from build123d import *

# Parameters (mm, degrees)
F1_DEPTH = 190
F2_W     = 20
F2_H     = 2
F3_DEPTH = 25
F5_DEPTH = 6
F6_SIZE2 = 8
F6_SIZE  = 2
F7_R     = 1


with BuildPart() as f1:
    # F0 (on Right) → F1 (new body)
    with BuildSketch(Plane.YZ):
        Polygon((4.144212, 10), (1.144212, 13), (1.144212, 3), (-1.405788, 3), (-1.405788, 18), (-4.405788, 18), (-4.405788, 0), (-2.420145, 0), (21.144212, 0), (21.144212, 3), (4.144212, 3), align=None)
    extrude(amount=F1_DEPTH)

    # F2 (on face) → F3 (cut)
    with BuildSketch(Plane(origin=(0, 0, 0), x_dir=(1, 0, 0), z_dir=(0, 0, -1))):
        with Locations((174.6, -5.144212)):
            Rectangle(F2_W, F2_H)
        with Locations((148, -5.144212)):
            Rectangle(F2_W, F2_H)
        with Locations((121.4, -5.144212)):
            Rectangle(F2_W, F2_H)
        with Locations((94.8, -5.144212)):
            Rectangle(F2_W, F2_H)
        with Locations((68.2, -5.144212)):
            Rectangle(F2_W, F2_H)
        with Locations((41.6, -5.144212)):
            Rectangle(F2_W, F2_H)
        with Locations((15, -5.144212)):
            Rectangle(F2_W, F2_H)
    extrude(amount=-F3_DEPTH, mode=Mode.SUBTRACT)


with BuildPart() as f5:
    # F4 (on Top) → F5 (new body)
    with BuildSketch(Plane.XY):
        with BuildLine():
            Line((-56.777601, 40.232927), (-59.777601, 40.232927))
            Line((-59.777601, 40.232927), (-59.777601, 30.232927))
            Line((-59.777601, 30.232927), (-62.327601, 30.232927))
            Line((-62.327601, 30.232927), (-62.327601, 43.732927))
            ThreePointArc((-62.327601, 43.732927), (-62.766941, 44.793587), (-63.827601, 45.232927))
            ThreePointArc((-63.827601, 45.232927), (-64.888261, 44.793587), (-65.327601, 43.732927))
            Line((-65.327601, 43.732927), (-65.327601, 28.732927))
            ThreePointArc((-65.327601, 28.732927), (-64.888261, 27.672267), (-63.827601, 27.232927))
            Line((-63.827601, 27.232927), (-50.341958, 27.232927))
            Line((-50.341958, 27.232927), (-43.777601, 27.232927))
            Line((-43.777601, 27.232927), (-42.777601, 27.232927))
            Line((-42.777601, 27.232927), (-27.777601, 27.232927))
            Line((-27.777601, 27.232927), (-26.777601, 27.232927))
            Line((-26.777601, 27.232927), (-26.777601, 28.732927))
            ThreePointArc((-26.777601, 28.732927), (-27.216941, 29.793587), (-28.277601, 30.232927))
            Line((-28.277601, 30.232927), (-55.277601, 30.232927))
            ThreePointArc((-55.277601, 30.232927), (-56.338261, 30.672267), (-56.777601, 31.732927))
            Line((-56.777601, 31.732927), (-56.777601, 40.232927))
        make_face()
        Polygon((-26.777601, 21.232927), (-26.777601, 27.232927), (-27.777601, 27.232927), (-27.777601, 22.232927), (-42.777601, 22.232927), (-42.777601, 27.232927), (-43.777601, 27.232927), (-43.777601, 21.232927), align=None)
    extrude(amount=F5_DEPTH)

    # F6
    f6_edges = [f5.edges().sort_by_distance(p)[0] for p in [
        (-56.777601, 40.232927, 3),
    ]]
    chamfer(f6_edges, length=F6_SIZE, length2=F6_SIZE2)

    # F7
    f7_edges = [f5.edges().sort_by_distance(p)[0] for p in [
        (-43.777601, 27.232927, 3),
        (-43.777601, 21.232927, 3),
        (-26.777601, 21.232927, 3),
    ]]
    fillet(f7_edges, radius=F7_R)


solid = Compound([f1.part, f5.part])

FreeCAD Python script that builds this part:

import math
import FreeCAD as App
import Part
import Sketcher
from FreeCAD import Vector
Q = App.Units.Quantity


def edges_at(feature, points):
    """Names of the edges that pass closest to the given points."""
    edges = feature.Shape.Edges
    near = lambda p: min(range(len(edges)), key=lambda i: edges[i].distToShape(Part.Vertex(*p))[0])
    return sorted({f"Edge{near(p) + 1}" for p in points})

doc = App.newDocument("Part")
body = doc.addObject("PartDesign::Body", "Body")

sketch1 = body.newObject("Sketcher::SketchObject", "Sketch")
sketch1.AttachmentSupport = (doc.getObject("YZ_Plane"), [""])
sketch1.MapMode = "FlatFace"
sketch1.addGeometry(Part.LineSegment(Vector(4.144212, 10, 0), Vector(1.144212, 13, 0)), False)
sketch1.addGeometry(Part.LineSegment(Vector(1.144212, 13, 0), Vector(1.144212, 3, 0)), False)
sketch1.addGeometry(Part.LineSegment(Vector(1.144212, 3, 0), Vector(-1.405788, 3, 0)), False)
sketch1.addGeometry(Part.LineSegment(Vector(-1.405788, 3, 0), Vector(-1.405788, 18, 0)), False)
sketch1.addGeometry(Part.LineSegment(Vector(-1.405788, 18, 0), Vector(-4.405788, 18, 0)), False)
sketch1.addGeometry(Part.LineSegment(Vector(-4.405788, 18, 0), Vector(-4.405788, 0, 0)), False)
sketch1.addGeometry(Part.LineSegment(Vector(-4.405788, 0, 0), Vector(21.144212, 0, 0)), False)
sketch1.addGeometry(Part.LineSegment(Vector(21.144212, 0, 0), Vector(21.144212, 3, 0)), False)
sketch1.addGeometry(Part.LineSegment(Vector(21.144212, 3, 0), Vector(4.144212, 3, 0)), False)
sketch1.addGeometry(Part.LineSegment(Vector(4.144212, 3, 0), Vector(4.144212, 10, 0)), False)
sketch1.addConstraint(Sketcher.Constraint("Coincident", 0, 2, 1, 1))
sketch1.addConstraint(Sketcher.Constraint("Coincident", 1, 2, 2, 1))
sketch1.addConstraint(Sketcher.Constraint("Coincident", 2, 2, 3, 1))
sketch1.addConstraint(Sketcher.Constraint("Coincident", 3, 2, 4, 1))
sketch1.addConstraint(Sketcher.Constraint("Coincident", 4, 2, 5, 1))
sketch1.addConstraint(Sketcher.Constraint("Coincident", 5, 2, 6, 1))
sketch1.addConstraint(Sketcher.Constraint("Coincident", 6, 2, 7, 1))
sketch1.addConstraint(Sketcher.Constraint("Coincident", 7, 2, 8, 1))
sketch1.addConstraint(Sketcher.Constraint("Coincident", 8, 2, 9, 1))
sketch1.addConstraint(Sketcher.Constraint("Coincident", 9, 2, 0, 1))
sketch1.addConstraint(Sketcher.Constraint("Vertical", 1))
sketch1.addConstraint(Sketcher.Constraint("Horizontal", 2))
sketch1.addConstraint(Sketcher.Constraint("Vertical", 3))
sketch1.addConstraint(Sketcher.Constraint("Horizontal", 4))
sketch1.addConstraint(Sketcher.Constraint("Vertical", 5))
sketch1.addConstraint(Sketcher.Constraint("Horizontal", 6))
sketch1.addConstraint(Sketcher.Constraint("Vertical", 7))
sketch1.addConstraint(Sketcher.Constraint("Horizontal", 8))
sketch1.addConstraint(Sketcher.Constraint("Vertical", 9))
sketch1.addConstraint(Sketcher.Constraint("PointOnObject", 5, 2, -1))
sketch1.addConstraint(Sketcher.Constraint("Horizontal", 2, 2, 7, 2))
sketch1.addConstraint(Sketcher.Constraint("Equal", 4, 7))
sketch1.addConstraint(Sketcher.Constraint("DistanceX", 4, 2, 4, 1, 3.0))
sketch1.addConstraint(Sketcher.Constraint("DistanceX", 8, 2, 8, 1, 17.0))
sketch1.addConstraint(Sketcher.Constraint("DistanceY", 1, 2, 1, 1, 10.0))
sketch1.addConstraint(Sketcher.Constraint("DistanceY", 3, 1, 3, 2, 15.0))
sketch1.addConstraint(Sketcher.Constraint("DistanceY", 9, 1, 9, 2, 7.0))
sketch1.addConstraint(Sketcher.Constraint("Angle", 0, Q("135 deg")))
sketch1.addConstraint(Sketcher.Constraint("DistanceX", 2, 2, 2, 1, 2.55))
sketch1.addConstraint(Sketcher.Constraint("DistanceX", 4, 2, -1, 1, 4.405788))
pad1 = body.newObject("PartDesign::Pad", "Pad")
pad1.Profile = sketch1
pad1.Length = 190

sketch2 = body.newObject("Sketcher::SketchObject", "Sketch001")
sketch2.AttachmentSupport = (doc.getObject("XY_Plane"), [""])
sketch2.MapMode = "FlatFace"
sketch2.addGeometry(Part.LineSegment(Vector(164.6, 4.144212, 0), Vector(164.6, 6.144212, 0)), False)
sketch2.addGeometry(Part.LineSegment(Vector(164.6, 6.144212, 0), Vector(184.6, 6.144212, 0)), False)
sketch2.addGeometry(Part.LineSegment(Vector(184.6, 6.144212, 0), Vector(184.6, 4.144212, 0)), False)
sketch2.addGeometry(Part.LineSegment(Vector(184.6, 4.144212, 0), Vector(164.6, 4.144212, 0)), False)
sketch2.addGeometry(Part.LineSegment(Vector(138, 4.144212, 0), Vector(138, 6.144212, 0)), False)
sketch2.addGeometry(Part.LineSegment(Vector(138, 6.144212, 0), Vector(158, 6.144212, 0)), False)
sketch2.addGeometry(Part.LineSegment(Vector(158, 6.144212, 0), Vector(158, 4.144212, 0)), False)
sketch2.addGeometry(Part.LineSegment(Vector(158, 4.144212, 0), Vector(138, 4.144212, 0)), False)
sketch2.addGeometry(Part.LineSegment(Vector(111.4, 4.144212, 0), Vector(111.4, 6.144212, 0)), False)
sketch2.addGeometry(Part.LineSegment(Vector(111.4, 6.144212, 0), Vector(131.4, 6.144212, 0)), False)
sketch2.addGeometry(Part.LineSegment(Vector(131.4, 6.144212, 0), Vector(131.4, 4.144212, 0)), False)
sketch2.addGeometry(Part.LineSegment(Vector(131.4, 4.144212, 0), Vector(111.4, 4.144212, 0)), False)
sketch2.addGeometry(Part.LineSegment(Vector(84.8, 4.144212, 0), Vector(84.8, 6.144212, 0)), False)
sketch2.addGeometry(Part.LineSegment(Vector(84.8, 6.144212, 0), Vector(104.8, 6.144212, 0)), False)
sketch2.addGeometry(Part.LineSegment(Vector(104.8, 6.144212, 0), Vector(104.8, 4.144212, 0)), False)
sketch2.addGeometry(Part.LineSegment(Vector(104.8, 4.144212, 0), Vector(84.8, 4.144212, 0)), False)
sketch2.addGeometry(Part.LineSegment(Vector(58.2, 4.144212, 0), Vector(58.2, 6.144212, 0)), False)
sketch2.addGeometry(Part.LineSegment(Vector(58.2, 6.144212, 0), Vector(78.2, 6.144212, 0)), False)
sketch2.addGeometry(Part.LineSegment(Vector(78.2, 6.144212, 0), Vector(78.2, 4.144212, 0)), False)
sketch2.addGeometry(Part.LineSegment(Vector(78.2, 4.144212, 0), Vector(58.2, 4.144212, 0)), False)
sketch2.addGeometry(Part.LineSegment(Vector(31.6, 4.144212, 0), Vector(31.6, 6.144212, 0)), False)
sketch2.addGeometry(Part.LineSegment(Vector(31.6, 6.144212, 0), Vector(51.6, 6.144212, 0)), False)
sketch2.addGeometry(Part.LineSegment(Vector(51.6, 6.144212, 0), Vector(51.6, 4.144212, 0)), False)
sketch2.addGeometry(Part.LineSegment(Vector(51.6, 4.144212, 0), Vector(31.6, 4.144212, 0)), False)
sketch2.addGeometry(Part.LineSegment(Vector(5, 4.144212, 0), Vector(5, 6.144212, 0)), False)
sketch2.addGeometry(Part.LineSegment(Vector(5, 6.144212, 0), Vector(25, 6.144212, 0)), False)
sketch2.addGeometry(Part.LineSegment(Vector(25, 6.144212, 0), Vector(25, 4.144212, 0)), False)
sketch2.addGeometry(Part.LineSegment(Vector(25, 4.144212, 0), Vector(5, 4.144212, 0)), False)
sketch2.addConstraint(Sketcher.Constraint("Coincident", 0, 2, 1, 1))
sketch2.addConstraint(Sketcher.Constraint("Coincident", 1, 2, 2, 1))
sketch2.addConstraint(Sketcher.Constraint("Coincident", 2, 2, 3, 1))
sketch2.addConstraint(Sketcher.Constraint("Coincident", 3, 2, 0, 1))
sketch2.addConstraint(Sketcher.Constraint("Coincident", 4, 2, 5, 1))
sketch2.addConstraint(Sketcher.Constraint("Coincident", 5, 2, 6, 1))
sketch2.addConstraint(Sketcher.Constraint("Coincident", 6, 2, 7, 1))
sketch2.addConstraint(Sketcher.Constraint("Coincident", 7, 2, 4, 1))
sketch2.addConstraint(Sketcher.Constraint("Coincident", 8, 2, 9, 1))
sketch2.addConstraint(Sketcher.Constraint("Coincident", 9, 2, 10, 1))
sketch2.addConstraint(Sketcher.Constraint("Coincident", 10, 2, 11, 1))
sketch2.addConstraint(Sketcher.Constraint("Coincident", 11, 2, 8, 1))
sketch2.addConstraint(Sketcher.Constraint("Coincident", 12, 2, 13, 1))
sketch2.addConstraint(Sketcher.Constraint("Coincident", 13, 2, 14, 1))
sketch2.addConstraint(Sketcher.Constraint("Coincident", 14, 2, 15, 1))
sketch2.addConstraint(Sketcher.Constraint("Coincident", 15, 2, 12, 1))
sketch2.addConstraint(Sketcher.Constraint("Coincident", 16, 2, 17, 1))
sketch2.addConstraint(Sketcher.Constraint("Coincident", 17, 2, 18, 1))
sketch2.addConstraint(Sketcher.Constraint("Coincident", 18, 2, 19, 1))
sketch2.addConstraint(Sketcher.Constraint("Coincident", 19, 2, 16, 1))
sketch2.addConstraint(Sketcher.Constraint("Coincident", 20, 2, 21, 1))
sketch2.addConstraint(Sketcher.Constraint("Coincident", 21, 2, 22, 1))
sketch2.addConstraint(Sketcher.Constraint("Coincident", 22, 2, 23, 1))
sketch2.addConstraint(Sketcher.Constraint("Coincident", 23, 2, 20, 1))
sketch2.addConstraint(Sketcher.Constraint("Coincident", 24, 2, 25, 1))
sketch2.addConstraint(Sketcher.Constraint("Coincident", 25, 2, 26, 1))
sketch2.addConstraint(Sketcher.Constraint("Coincident", 26, 2, 27, 1))
sketch2.addConstraint(Sketcher.Constraint("Coincident", 27, 2, 24, 1))
sketch2.addConstraint(Sketcher.Constraint("Vertical", 0))
sketch2.addConstraint(Sketcher.Constraint("Horizontal", 1))
sketch2.addConstraint(Sketcher.Constraint("Vertical", 2))
sketch2.addConstraint(Sketcher.Constraint("Horizontal", 3))
sketch2.addConstraint(Sketcher.Constraint("Vertical", 4))
sketch2.addConstraint(Sketcher.Constraint("Horizontal", 5))
sketch2.addConstraint(Sketcher.Constraint("Vertical", 6))
sketch2.addConstraint(Sketcher.Constraint("Horizontal", 7))
sketch2.addConstraint(Sketcher.Constraint("Vertical", 8))
sketch2.addConstraint(Sketcher.Constraint("Horizontal", 9))
sketch2.addConstraint(Sketcher.Constraint("Vertical", 10))
sketch2.addConstraint(Sketcher.Constraint("Horizontal", 11))
sketch2.addConstraint(Sketcher.Constraint("Vertical", 12))
sketch2.addConstraint(Sketcher.Constraint("Horizontal", 13))
sketch2.addConstraint(Sketcher.Constraint("Vertical", 14))
sketch2.addConstraint(Sketcher.Constraint("Horizontal", 15))
sketch2.addConstraint(Sketcher.Constraint("Vertical", 16))
sketch2.addConstraint(Sketcher.Constraint("Horizontal", 17))
sketch2.addConstraint(Sketcher.Constraint("Vertical", 18))
sketch2.addConstraint(Sketcher.Constraint("Horizontal", 19))
sketch2.addConstraint(Sketcher.Constraint("Vertical", 20))
sketch2.addConstraint(Sketcher.Constraint("Horizontal", 21))
sketch2.addConstraint(Sketcher.Constraint("Vertical", 22))
sketch2.addConstraint(Sketcher.Constraint("Horizontal", 23))
sketch2.addConstraint(Sketcher.Constraint("Vertical", 24))
sketch2.addConstraint(Sketcher.Constraint("Horizontal", 25))
sketch2.addConstraint(Sketcher.Constraint("Vertical", 26))
sketch2.addConstraint(Sketcher.Constraint("Horizontal", 27))
sketch2.addConstraint(Sketcher.Constraint("Horizontal", 1, 2, 4, 2))
sketch2.addConstraint(Sketcher.Constraint("Horizontal", 3, 2, 6, 2))
sketch2.addConstraint(Sketcher.Constraint("Horizontal", 5, 2, 8, 2))
sketch2.addConstraint(Sketcher.Constraint("Horizontal", 7, 2, 10, 2))
sketch2.addConstraint(Sketcher.Constraint("Horizontal", 9, 2, 12, 2))
sketch2.addConstraint(Sketcher.Constraint("Horizontal", 11, 2, 14, 2))
sketch2.addConstraint(Sketcher.Constraint("Horizontal", 13, 2, 16, 2))
sketch2.addConstraint(Sketcher.Constraint("Horizontal", 15, 2, 18, 2))
sketch2.addConstraint(Sketcher.Constraint("Horizontal", 17, 2, 20, 2))
sketch2.addConstraint(Sketcher.Constraint("Horizontal", 19, 2, 22, 2))
sketch2.addConstraint(Sketcher.Constraint("Horizontal", 21, 2, 24, 2))
sketch2.addConstraint(Sketcher.Constraint("Horizontal", 23, 2, 26, 2))
sketch2.addConstraint(Sketcher.Constraint("Equal", 3, 5))
sketch2.addConstraint(Sketcher.Constraint("Equal", 7, 9))
sketch2.addConstraint(Sketcher.Constraint("Equal", 11, 13))
sketch2.addConstraint(Sketcher.Constraint("Equal", 15, 17))
sketch2.addConstraint(Sketcher.Constraint("Equal", 19, 21))
sketch2.addConstraint(Sketcher.Constraint("Equal", 23, 25))
sketch2.addConstraint(Sketcher.Constraint("DistanceX", 1, 1, 1, 2, 20.0))
sketch2.addConstraint(Sketcher.Constraint("DistanceY", 0, 1, 0, 2, 2.0))
sketch2.addConstraint(Sketcher.Constraint("DistanceX", -1, 1, 4, 2, 138.0))
sketch2.addConstraint(Sketcher.Constraint("DistanceX", -1, 1, 24, 2, 5.0))
sketch2.addConstraint(Sketcher.Constraint("DistanceX", -1, 1, 0, 2, 164.6))
sketch2.addConstraint(Sketcher.Constraint("DistanceX", -1, 1, 8, 2, 111.4))
sketch2.addConstraint(Sketcher.Constraint("DistanceX", -1, 1, 12, 2, 84.8))
sketch2.addConstraint(Sketcher.Constraint("DistanceX", -1, 1, 16, 2, 58.2))
sketch2.addConstraint(Sketcher.Constraint("DistanceX", -1, 1, 20, 2, 31.6))
sketch2.addConstraint(Sketcher.Constraint("DistanceY", -1, 1, 0, 2, 6.144212))
pocket1 = body.newObject("PartDesign::Pocket", "Pocket")
pocket1.Profile = sketch2
pocket1.Length = 25
pocket1.Reversed = True
body2 = doc.addObject("PartDesign::Body", "Body001")

sketch3 = body2.newObject("Sketcher::SketchObject", "Sketch002")
sketch3.AttachmentSupport = (doc.getObject("XY_Plane001"), [""])
sketch3.MapMode = "FlatFace"
sketch3.addGeometry(Part.LineSegment(Vector(-56.777601, 40.232927, 0), Vector(-59.777601, 40.232927, 0)), False)
sketch3.addGeometry(Part.LineSegment(Vector(-59.777601, 40.232927, 0), Vector(-59.777601, 30.232927, 0)), False)
sketch3.addGeometry(Part.LineSegment(Vector(-59.777601, 30.232927, 0), Vector(-62.327601, 30.232927, 0)), False)
sketch3.addGeometry(Part.LineSegment(Vector(-62.327601, 30.232927, 0), Vector(-62.327601, 43.732927, 0)), False)
sketch3.addGeometry(Part.ArcOfCircle(Part.Circle(Vector(-63.827602, 43.732926, 0), Vector(0, 0, 1), 1.500001), math.radians(0.000022), math.radians(89.999978)), False)
sketch3.addGeometry(Part.ArcOfCircle(Part.Circle(Vector(-63.8276, 43.732926, 0), Vector(0, 0, 1), 1.500001), math.radians(90.000022), math.radians(179.999978)), False)
sketch3.addGeometry(Part.LineSegment(Vector(-65.327601, 43.732927, 0), Vector(-65.327601, 28.732927, 0)), False)
sketch3.addGeometry(Part.ArcOfCircle(Part.Circle(Vector(-63.8276, 28.732928, 0), Vector(0, 0, 1), 1.500001), math.radians(-179.999978), math.radians(-90.000022)), False)
sketch3.addGeometry(Part.LineSegment(Vector(-63.827601, 27.232927, 0), Vector(-43.777601, 27.232927, 0)), False)
sketch3.addGeometry(Part.LineSegment(Vector(-43.777601, 27.232927, 0), Vector(-43.777601, 21.232927, 0)), False)
sketch3.addGeometry(Part.LineSegment(Vector(-43.777601, 21.232927, 0), Vector(-26.777601, 21.232927, 0)), False)
sketch3.addGeometry(Part.LineSegment(Vector(-26.777601, 21.232927, 0), Vector(-26.777601, 28.732927, 0)), False)
sketch3.addGeometry(Part.ArcOfCircle(Part.Circle(Vector(-28.277602, 28.732926, 0), Vector(0, 0, 1), 1.500001), math.radians(0.000022), math.radians(89.999978)), False)
sketch3.addGeometry(Part.LineSegment(Vector(-28.277601, 30.232927, 0), Vector(-55.277601, 30.232927, 0)), False)
sketch3.addGeometry(Part.ArcOfCircle(Part.Circle(Vector(-55.2776, 31.732928, 0), Vector(0, 0, 1), 1.500001), math.radians(-179.999978), math.radians(-90.000022)), False)
sketch3.addGeometry(Part.LineSegment(Vector(-56.777601, 31.732927, 0), Vector(-56.777601, 40.232927, 0)), False)
sketch3.addGeometry(Part.LineSegment(Vector(-42.777601, 27.232927, 0), Vector(-27.777601, 27.232927, 0)), False)
sketch3.addGeometry(Part.LineSegment(Vector(-27.777601, 27.232927, 0), Vector(-27.777601, 22.232927, 0)), False)
sketch3.addGeometry(Part.LineSegment(Vector(-27.777601, 22.232927, 0), Vector(-42.777601, 22.232927, 0)), False)
sketch3.addGeometry(Part.LineSegment(Vector(-42.777601, 22.232927, 0), Vector(-42.777601, 27.232927, 0)), False)
sketch3.addConstraint(Sketcher.Constraint("Coincident", 0, 2, 1, 1))
sketch3.addConstraint(Sketcher.Constraint("Coincident", 1, 2, 2, 1))
sketch3.addConstraint(Sketcher.Constraint("Coincident", 2, 2, 3, 1))
sketch3.addConstraint(Sketcher.Constraint("Tangent", 3, 2, 4, 1))
sketch3.addConstraint(Sketcher.Constraint("Tangent", 4, 2, 5, 1))
sketch3.addConstraint(Sketcher.Constraint("Tangent", 5, 2, 6, 1))
sketch3.addConstraint(Sketcher.Constraint("Tangent", 6, 2, 7, 1))
sketch3.addConstraint(Sketcher.Constraint("Tangent", 7, 2, 8, 1))
sketch3.addConstraint(Sketcher.Constraint("Coincident", 8, 2, 9, 1))
sketch3.addConstraint(Sketcher.Constraint("Coincident", 9, 2, 10, 1))
sketch3.addConstraint(Sketcher.Constraint("Coincident", 10, 2, 11, 1))
sketch3.addConstraint(Sketcher.Constraint("Tangent", 11, 2, 12, 1))
sketch3.addConstraint(Sketcher.Constraint("Tangent", 12, 2, 13, 1))
sketch3.addConstraint(Sketcher.Constraint("Tangent", 13, 2, 14, 2))
sketch3.addConstraint(Sketcher.Constraint("Tangent", 14, 1, 15, 1))
sketch3.addConstraint(Sketcher.Constraint("Coincident", 15, 2, 0, 1))
sketch3.addConstraint(Sketcher.Constraint("Coincident", 16, 2, 17, 1))
sketch3.addConstraint(Sketcher.Constraint("Coincident", 17, 2, 18, 1))
sketch3.addConstraint(Sketcher.Constraint("Coincident", 18, 2, 19, 1))
sketch3.addConstraint(Sketcher.Constraint("Coincident", 19, 2, 16, 1))
sketch3.addConstraint(Sketcher.Constraint("Horizontal", 0))
sketch3.addConstraint(Sketcher.Constraint("Vertical", 1))
sketch3.addConstraint(Sketcher.Constraint("Horizontal", 2))
sketch3.addConstraint(Sketcher.Constraint("Vertical", 3))
sketch3.addConstraint(Sketcher.Constraint("Vertical", 6))
sketch3.addConstraint(Sketcher.Constraint("Horizontal", 8))
sketch3.addConstraint(Sketcher.Constraint("Vertical", 9))
sketch3.addConstraint(Sketcher.Constraint("Horizontal", 10))
sketch3.addConstraint(Sketcher.Constraint("Vertical", 11))
sketch3.addConstraint(Sketcher.Constraint("Horizontal", 13))
sketch3.addConstraint(Sketcher.Constraint("Vertical", 15))
sketch3.addConstraint(Sketcher.Constraint("Horizontal", 16))
sketch3.addConstraint(Sketcher.Constraint("Vertical", 17))
sketch3.addConstraint(Sketcher.Constraint("Horizontal", 18))
sketch3.addConstraint(Sketcher.Constraint("Vertical", 19))
sketch3.addConstraint(Sketcher.Constraint("Equal", 4, 5))
sketch3.addConstraint(Sketcher.Constraint("Equal", 5, 7))
sketch3.addConstraint(Sketcher.Constraint("Equal", 7, 12))
sketch3.addConstraint(Sketcher.Constraint("Equal", 12, 14))
sketch3.addConstraint(Sketcher.Constraint("Horizontal", 7, 3, 12, 3))
sketch3.addConstraint(Sketcher.Constraint("Horizontal", 2, 2, 12, 2))
sketch3.addConstraint(Sketcher.Constraint("Horizontal", 8, 2, 16, 2))
sketch3.addConstraint(Sketcher.Constraint("Vertical", 7, 3, 4, 2))
sketch3.addConstraint(Sketcher.Constraint("Equal", 18, 6))
sketch3.addConstraint(Sketcher.Constraint("Radius", 4, 1.500001))
sketch3.addConstraint(Sketcher.Constraint("DistanceX", 0, 2, 0, 1, 3.0))
sketch3.addConstraint(Sketcher.Constraint("DistanceX", 10, 1, 10, 2, 17.0))
sketch3.addConstraint(Sketcher.Constraint("DistanceX", 13, 2, 13, 1, 27.0))
sketch3.addConstraint(Sketcher.Constraint("DistanceX", 16, 1, 16, 2, 15.0))
sketch3.addConstraint(Sketcher.Constraint("DistanceY", 1, 2, 1, 1, 10.0))
sketch3.addConstraint(Sketcher.Constraint("DistanceY", 9, 2, 9, 1, 6.0))
sketch3.addConstraint(Sketcher.Constraint("DistanceY", 17, 2, 17, 1, 5.0))
sketch3.addConstraint(Sketcher.Constraint("DistanceX", 16, 2, 11, 2, 1.0))
sketch3.addConstraint(Sketcher.Constraint("DistanceX", 2, 2, 2, 1, 2.55))
sketch3.addConstraint(Sketcher.Constraint("DistanceX", 4, 3, -1, 1, 63.827602))
sketch3.addConstraint(Sketcher.Constraint("DistanceY", -1, 1, 4, 3, 43.732926))
pad2 = body2.newObject("PartDesign::Pad", "Pad001")
pad2.Profile = sketch3
pad2.Length = 6
doc.recompute()

chamfer = body2.newObject("PartDesign::Chamfer", "Chamfer")
chamfer.Base = (pad2, edges_at(pad2, [(-56.778, 40.233, 3)]))
chamfer.ChamferType = "Two distances"
chamfer.Size = 2
chamfer.Size2 = 8
chamfer.FlipDirection = True
doc.recompute()

fillet = body2.newObject("PartDesign::Fillet", "Fillet")
fillet.Base = (chamfer, edges_at(chamfer, [(-43.778, 27.233, 3), (-43.778, 21.233, 3), (-26.778, 21.233, 3)]))
fillet.Radius = 1

doc.recompute()
